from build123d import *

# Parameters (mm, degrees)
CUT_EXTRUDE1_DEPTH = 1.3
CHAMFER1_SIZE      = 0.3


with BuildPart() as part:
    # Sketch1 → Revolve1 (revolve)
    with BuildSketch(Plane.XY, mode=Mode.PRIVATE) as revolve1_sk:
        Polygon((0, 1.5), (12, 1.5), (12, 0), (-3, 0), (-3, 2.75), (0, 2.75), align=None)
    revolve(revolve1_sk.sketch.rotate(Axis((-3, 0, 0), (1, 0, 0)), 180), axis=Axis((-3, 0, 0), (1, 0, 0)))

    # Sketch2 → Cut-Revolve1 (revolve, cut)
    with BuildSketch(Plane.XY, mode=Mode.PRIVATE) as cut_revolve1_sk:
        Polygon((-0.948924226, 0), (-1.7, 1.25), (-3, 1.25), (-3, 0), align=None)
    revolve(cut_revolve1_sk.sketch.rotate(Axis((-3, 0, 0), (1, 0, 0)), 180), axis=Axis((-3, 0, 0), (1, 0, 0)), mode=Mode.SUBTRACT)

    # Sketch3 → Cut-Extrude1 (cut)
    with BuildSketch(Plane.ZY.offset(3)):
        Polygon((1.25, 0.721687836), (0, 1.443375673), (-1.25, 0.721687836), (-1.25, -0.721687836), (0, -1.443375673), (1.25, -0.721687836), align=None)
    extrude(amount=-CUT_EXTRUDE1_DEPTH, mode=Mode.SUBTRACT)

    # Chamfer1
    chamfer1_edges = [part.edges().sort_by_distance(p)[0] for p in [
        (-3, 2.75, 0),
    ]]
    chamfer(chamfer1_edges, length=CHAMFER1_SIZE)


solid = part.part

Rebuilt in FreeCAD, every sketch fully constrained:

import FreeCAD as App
import Part
import Sketcher

V = App.Vector
Q = App.Units.Quantity


def edges_at(feature, points):
    """Names of the edges that pass closest to the given points."""
    edges = feature.Shape.Edges
    near = lambda p: min(range(len(edges)), key=lambda i: edges[i].distToShape(Part.Vertex(*p))[0])
    return sorted({f"Edge{near(p) + 1}" for p in points})


def add_polygon(sketch, points):
    """Adds a closed chain of lines whose ends are joined by coincident constraints."""
    first, n = sketch.GeometryCount, len(points)
    for a, b in zip(points, points[1:] + points[:1]):
        sketch.addGeometry(Part.LineSegment(App.Vector(*a, 0), App.Vector(*b, 0)), False)
    for i in range(n):
        sketch.addConstraint(Sketcher.Constraint("Coincident", first + i, 2, first + (i + 1) % n, 1))

doc = App.newDocument("Part")
body = doc.addObject("PartDesign::Body", "Body")

# Sketch on XY plane
sketch1 = body.newObject("Sketcher::SketchObject", "Sketch")
sketch1.AttachmentSupport = (doc.getObject("XY_Plane"), [""])
sketch1.MapMode = "FlatFace"
add_polygon(sketch1, [(12, 1.5), (0, 1.5), (0, 2.75), (-3, 2.75), (-3, 0), (12, 0)])  # lines 0-5
sketch1.addConstraint(Sketcher.Constraint("Horizontal", 0))
sketch1.addConstraint(Sketcher.Constraint("Vertical", 1))
sketch1.addConstraint(Sketcher.Constraint("Horizontal", 2))
sketch1.addConstraint(Sketcher.Constraint("Vertical", 3))
sketch1.addConstraint(Sketcher.Constraint("Horizontal", 4))
sketch1.addConstraint(Sketcher.Constraint("Vertical", 5))
sketch1.addConstraint(Sketcher.Constraint("PointOnObject", 0, 2, -2))
sketch1.addConstraint(Sketcher.Constraint("PointOnObject", 3, 2, -1))
sketch1.addConstraint(Sketcher.Constraint("DistanceX", 0, 2, 0, 1, Q("12 mm")))
sketch1.addConstraint(Sketcher.Constraint("DistanceX", 2, 2, 2, 1, Q("3 mm")))
sketch1.addConstraint(Sketcher.Constraint("DistanceY", 5, 1, 5, 2, Q("1.5 mm")))
sketch1.addConstraint(Sketcher.Constraint("DistanceY", 1, 1, 1, 2, Q("1.25 mm")))
revolution = body.newObject("PartDesign::Revolution", "Revolution")
revolution.Profile = sketch1
revolution.ReferenceAxis = (sketch1, ["H_Axis"])
revolution.Angle = 360

# Sketch on XY plane
sketch2 = body.newObject("Sketcher::SketchObject", "Sketch001")
sketch2.AttachmentSupport = (doc.getObject("XY_Plane"), [""])
sketch2.MapMode = "FlatFace"
add_polygon(sketch2, [(-0.948924, 0), (-1.7, 1.25), (-3, 1.25), (-3, 0)])  # lines 0-3
sketch2.addConstraint(Sketcher.Constraint("Horizontal", 1))
sketch2.addConstraint(Sketcher.Constraint("Vertical", 2))
sketch2.addConstraint(Sketcher.Constraint("Horizontal", 3))
sketch2.addConstraint(Sketcher.Constraint("PointOnObject", 2, 2, -1))
sketch2.addConstraint(Sketcher.Constraint("Angle", 0, Q("121 deg")))
sketch2.addConstraint(Sketcher.Constraint("DistanceX", 1, 2, 1, 1, Q("1.3 mm")))
sketch2.addConstraint(Sketcher.Constraint("DistanceX", 1, 2, -1, 1, Q("3 mm")))
sketch2.addConstraint(Sketcher.Constraint("DistanceY", 2, 2, 2, 1, Q("1.25 mm")))
groove = body.newObject("PartDesign::Groove", "Groove")
groove.Profile = sketch2
groove.ReferenceAxis = (sketch2, ["H_Axis"])
groove.Angle = 360

# Sketch on YZ plane
sketch3 = body.newObject("Sketcher::SketchObject", "Sketch002")
sketch3.AttachmentSupport = (doc.getObject("YZ_Plane"), [""])
sketch3.MapMode = "FlatFace"
sketch3.AttachmentOffset = App.Placement(V(0, 0, -3), App.Rotation())
add_polygon(sketch3, [(0.721688, 1.25), (1.443376, 0), (0.721688, -1.25), (-0.721688, -1.25), (-1.443376, 0), (-0.721688, 1.25)])  # lines 0-5
sketch3.addConstraint(Sketcher.Constraint("Horizontal", 2))
sketch3.addConstraint(Sketcher.Constraint("Horizontal", 5))
sketch3.addConstraint(Sketcher.Constraint("Symmetric", 0, 2, 3, 2, -1, 1))
sketch3.addConstraint(Sketcher.Constraint("Symmetric", 1, 2, 4, 2, -1, 1))
sketch3.addConstraint(Sketcher.Constraint("PointOnObject", 0, 2, -1))
sketch3.addConstraint(Sketcher.Constraint("Parallel", 0, 3))
sketch3.addConstraint(Sketcher.Constraint("Vertical", 2, 2, 4, 2))
sketch3.addConstraint(Sketcher.Constraint("Angle", 0, Q("-60 deg")))
sketch3.addConstraint(Sketcher.Constraint("DistanceY", 2, 2, 4, 2, Q("2.5 mm")))
sketch3.addConstraint(Sketcher.Constraint("DistanceX", 2, 2, 2, 1, Q("1.443376 mm")))
pocket1 = body.newObject("PartDesign::Pocket", "Pocket")
pocket1.Profile = sketch3
pocket1.Length = 1.3
pocket1.Reversed = True
doc.recompute()

chamfer = body.newObject("PartDesign::Chamfer", "Chamfer")
chamfer.Base = (pocket1, edges_at(pocket1, [(-3, 2.75, 0)]))
chamfer.Size = 0.3

doc.recompute()
